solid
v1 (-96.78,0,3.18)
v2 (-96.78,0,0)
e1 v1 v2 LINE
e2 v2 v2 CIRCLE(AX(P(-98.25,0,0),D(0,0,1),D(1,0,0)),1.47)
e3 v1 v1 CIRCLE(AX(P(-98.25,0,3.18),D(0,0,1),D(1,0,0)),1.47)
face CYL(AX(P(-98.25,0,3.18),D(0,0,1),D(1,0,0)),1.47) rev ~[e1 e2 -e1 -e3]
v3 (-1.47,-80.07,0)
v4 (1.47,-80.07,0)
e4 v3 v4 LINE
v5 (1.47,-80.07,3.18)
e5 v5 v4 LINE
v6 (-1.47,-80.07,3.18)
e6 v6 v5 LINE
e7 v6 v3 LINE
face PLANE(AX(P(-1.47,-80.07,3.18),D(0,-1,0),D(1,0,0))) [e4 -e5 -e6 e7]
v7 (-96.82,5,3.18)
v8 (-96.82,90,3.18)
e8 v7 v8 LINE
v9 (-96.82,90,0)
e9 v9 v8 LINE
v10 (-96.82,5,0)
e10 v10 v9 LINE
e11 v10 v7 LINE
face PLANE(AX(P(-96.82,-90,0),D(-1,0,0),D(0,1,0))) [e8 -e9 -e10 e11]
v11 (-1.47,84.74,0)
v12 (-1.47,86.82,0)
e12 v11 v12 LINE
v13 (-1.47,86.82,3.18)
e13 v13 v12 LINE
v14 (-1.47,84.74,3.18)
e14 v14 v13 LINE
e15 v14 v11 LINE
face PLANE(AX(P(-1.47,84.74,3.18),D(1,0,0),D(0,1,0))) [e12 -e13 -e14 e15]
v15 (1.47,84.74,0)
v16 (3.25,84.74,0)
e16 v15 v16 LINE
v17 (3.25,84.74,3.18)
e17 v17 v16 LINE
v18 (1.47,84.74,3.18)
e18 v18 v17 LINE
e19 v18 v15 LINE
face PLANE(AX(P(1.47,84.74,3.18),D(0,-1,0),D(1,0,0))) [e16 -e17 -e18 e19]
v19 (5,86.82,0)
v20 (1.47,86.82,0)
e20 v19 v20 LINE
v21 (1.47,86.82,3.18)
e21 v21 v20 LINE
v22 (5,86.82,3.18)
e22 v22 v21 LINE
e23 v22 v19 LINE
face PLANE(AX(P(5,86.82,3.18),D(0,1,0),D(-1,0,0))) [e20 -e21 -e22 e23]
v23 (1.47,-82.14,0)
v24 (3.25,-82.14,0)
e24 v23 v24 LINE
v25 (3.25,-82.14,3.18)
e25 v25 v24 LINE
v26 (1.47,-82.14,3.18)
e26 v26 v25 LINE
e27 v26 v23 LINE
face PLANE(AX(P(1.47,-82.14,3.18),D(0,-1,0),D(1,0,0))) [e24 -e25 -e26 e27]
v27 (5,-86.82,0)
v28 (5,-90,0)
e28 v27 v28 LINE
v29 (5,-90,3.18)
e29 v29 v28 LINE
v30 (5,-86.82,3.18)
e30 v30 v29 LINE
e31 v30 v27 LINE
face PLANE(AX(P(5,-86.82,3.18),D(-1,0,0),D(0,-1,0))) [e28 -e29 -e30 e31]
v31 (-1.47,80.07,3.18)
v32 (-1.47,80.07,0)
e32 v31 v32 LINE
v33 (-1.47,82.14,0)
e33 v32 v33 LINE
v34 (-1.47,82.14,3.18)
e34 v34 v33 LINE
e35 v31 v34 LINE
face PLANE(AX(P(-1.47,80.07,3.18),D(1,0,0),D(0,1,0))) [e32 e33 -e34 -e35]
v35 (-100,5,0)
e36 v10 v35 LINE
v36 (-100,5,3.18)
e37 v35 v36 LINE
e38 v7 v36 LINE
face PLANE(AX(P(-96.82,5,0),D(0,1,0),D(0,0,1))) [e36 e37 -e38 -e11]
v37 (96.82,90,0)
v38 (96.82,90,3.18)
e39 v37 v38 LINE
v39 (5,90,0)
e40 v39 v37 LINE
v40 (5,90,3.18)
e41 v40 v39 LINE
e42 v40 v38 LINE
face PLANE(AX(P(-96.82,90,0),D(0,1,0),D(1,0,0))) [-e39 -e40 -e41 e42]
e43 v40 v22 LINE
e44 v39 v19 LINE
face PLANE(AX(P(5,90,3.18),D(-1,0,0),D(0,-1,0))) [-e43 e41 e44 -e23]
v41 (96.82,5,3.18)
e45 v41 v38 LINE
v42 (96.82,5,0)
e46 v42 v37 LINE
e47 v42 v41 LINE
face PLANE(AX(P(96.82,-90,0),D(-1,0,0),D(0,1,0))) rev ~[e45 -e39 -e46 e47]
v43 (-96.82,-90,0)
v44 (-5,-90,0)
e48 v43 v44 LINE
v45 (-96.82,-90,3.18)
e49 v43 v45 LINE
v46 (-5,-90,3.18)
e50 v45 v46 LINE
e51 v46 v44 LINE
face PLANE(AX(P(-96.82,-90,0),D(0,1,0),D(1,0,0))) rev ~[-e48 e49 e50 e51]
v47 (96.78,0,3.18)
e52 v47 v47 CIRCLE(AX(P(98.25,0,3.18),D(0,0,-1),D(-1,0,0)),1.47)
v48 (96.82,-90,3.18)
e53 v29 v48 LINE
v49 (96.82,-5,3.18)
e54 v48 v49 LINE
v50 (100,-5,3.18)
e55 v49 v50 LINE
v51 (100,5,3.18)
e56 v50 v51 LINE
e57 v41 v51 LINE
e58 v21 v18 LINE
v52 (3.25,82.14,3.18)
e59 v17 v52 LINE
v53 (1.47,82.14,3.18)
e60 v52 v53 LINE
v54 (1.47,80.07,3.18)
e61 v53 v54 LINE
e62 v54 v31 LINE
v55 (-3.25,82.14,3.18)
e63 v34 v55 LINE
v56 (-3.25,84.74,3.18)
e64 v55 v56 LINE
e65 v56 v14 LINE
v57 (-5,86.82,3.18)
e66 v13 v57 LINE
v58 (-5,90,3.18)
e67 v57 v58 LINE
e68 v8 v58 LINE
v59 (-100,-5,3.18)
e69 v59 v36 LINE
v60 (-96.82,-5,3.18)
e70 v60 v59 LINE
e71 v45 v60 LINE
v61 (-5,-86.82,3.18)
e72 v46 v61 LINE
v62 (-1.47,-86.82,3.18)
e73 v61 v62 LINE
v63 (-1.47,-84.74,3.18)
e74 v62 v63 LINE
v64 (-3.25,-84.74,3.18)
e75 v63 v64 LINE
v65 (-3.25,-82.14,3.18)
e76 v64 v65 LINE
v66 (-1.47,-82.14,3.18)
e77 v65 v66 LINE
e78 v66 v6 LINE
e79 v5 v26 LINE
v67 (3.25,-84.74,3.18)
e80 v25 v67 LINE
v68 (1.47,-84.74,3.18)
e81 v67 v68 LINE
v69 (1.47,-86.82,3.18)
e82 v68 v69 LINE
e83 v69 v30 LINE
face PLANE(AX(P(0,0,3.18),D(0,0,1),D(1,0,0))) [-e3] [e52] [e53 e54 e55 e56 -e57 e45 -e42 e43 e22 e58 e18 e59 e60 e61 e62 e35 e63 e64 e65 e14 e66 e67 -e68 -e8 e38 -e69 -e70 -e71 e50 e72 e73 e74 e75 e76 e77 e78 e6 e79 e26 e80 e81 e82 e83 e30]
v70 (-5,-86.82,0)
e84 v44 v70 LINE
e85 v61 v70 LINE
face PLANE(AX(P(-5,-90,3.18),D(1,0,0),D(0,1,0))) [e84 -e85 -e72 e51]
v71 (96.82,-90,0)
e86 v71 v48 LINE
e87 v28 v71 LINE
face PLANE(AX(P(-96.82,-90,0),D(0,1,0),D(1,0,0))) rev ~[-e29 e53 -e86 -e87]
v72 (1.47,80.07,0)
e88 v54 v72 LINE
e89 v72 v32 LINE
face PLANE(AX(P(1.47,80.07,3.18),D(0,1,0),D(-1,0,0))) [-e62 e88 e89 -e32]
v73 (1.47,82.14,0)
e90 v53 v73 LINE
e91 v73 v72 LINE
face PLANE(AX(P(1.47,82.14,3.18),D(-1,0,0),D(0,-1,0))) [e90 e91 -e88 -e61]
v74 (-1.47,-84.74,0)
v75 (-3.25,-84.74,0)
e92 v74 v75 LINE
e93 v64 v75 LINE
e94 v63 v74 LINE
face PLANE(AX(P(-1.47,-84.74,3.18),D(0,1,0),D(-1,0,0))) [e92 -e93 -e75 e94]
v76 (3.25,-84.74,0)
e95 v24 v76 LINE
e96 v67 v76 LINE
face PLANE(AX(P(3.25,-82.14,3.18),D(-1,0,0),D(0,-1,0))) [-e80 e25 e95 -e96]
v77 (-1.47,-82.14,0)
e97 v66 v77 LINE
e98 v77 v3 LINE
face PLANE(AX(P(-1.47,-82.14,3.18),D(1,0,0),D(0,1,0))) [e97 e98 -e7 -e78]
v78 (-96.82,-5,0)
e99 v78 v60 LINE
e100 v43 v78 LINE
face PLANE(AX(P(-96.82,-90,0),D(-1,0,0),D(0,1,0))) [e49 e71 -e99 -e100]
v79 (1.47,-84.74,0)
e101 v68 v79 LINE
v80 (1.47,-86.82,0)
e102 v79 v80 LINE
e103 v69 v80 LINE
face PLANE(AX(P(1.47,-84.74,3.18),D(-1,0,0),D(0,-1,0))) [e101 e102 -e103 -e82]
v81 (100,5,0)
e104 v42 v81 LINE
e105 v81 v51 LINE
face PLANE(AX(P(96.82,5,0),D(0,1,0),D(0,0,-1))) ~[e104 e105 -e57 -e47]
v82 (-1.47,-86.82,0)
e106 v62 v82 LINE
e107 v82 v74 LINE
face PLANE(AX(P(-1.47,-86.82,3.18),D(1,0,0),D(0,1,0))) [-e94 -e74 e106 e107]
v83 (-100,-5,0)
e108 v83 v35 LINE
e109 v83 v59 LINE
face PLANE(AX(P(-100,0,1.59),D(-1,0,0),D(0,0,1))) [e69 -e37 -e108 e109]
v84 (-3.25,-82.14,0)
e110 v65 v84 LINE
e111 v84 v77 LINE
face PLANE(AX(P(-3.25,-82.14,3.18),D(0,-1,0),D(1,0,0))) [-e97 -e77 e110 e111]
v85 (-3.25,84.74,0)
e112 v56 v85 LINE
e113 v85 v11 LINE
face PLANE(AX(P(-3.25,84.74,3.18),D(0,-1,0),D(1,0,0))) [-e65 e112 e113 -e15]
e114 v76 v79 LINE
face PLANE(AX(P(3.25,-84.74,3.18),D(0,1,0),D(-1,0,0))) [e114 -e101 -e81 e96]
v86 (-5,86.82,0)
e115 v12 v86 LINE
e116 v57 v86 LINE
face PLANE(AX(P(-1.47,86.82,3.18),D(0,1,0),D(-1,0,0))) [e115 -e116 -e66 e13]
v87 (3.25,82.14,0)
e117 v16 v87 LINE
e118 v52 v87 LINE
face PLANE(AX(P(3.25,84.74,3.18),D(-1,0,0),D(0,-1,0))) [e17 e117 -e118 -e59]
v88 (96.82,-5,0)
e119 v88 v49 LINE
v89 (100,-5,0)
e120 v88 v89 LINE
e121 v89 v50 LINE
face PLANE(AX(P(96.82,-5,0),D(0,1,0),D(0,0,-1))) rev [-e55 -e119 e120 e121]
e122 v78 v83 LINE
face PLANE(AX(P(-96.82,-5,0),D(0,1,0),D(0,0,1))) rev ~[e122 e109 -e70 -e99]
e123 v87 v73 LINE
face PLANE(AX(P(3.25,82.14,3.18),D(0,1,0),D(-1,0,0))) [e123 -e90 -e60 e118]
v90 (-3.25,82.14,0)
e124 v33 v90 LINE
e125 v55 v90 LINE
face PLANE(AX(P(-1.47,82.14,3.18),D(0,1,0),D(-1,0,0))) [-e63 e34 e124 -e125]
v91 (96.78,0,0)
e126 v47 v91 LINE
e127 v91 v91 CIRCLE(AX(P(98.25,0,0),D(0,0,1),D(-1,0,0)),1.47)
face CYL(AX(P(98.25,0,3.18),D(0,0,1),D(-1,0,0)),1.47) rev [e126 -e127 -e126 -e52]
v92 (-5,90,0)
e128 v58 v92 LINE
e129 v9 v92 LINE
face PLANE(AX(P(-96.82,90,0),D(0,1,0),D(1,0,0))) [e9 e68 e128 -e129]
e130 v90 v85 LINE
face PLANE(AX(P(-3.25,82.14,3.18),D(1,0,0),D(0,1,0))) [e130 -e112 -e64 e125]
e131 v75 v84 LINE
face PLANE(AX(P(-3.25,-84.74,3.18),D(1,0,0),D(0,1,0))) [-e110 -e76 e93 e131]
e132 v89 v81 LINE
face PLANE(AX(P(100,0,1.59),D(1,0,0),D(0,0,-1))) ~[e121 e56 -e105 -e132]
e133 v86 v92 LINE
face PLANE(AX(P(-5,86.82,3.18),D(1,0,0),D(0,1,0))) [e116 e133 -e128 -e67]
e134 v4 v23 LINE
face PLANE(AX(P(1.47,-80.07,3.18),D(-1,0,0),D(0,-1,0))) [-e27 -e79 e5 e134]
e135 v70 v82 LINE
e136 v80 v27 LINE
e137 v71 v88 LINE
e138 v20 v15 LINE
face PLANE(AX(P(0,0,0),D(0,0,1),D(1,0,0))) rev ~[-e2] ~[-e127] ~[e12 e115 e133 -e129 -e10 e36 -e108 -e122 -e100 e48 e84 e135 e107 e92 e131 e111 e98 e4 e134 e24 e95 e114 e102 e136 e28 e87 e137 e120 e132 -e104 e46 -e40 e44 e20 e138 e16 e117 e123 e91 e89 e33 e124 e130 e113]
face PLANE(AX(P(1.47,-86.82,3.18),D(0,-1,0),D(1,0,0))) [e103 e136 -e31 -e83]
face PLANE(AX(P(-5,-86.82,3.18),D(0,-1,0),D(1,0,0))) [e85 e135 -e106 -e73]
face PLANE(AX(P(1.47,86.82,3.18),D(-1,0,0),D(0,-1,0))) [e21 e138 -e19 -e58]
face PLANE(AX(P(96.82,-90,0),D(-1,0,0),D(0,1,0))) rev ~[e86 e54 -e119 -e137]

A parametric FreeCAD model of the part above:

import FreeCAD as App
import Part
import Sketcher
from FreeCAD import Vector
Q = App.Units.Quantity


def add_polygon(sketch, points):
    """Adds a closed chain of lines whose ends are joined by coincident constraints."""
    first, n = sketch.GeometryCount, len(points)
    for a, b in zip(points, points[1:] + points[:1]):
        sketch.addGeometry(Part.LineSegment(App.Vector(*a, 0), App.Vector(*b, 0)), False)
    for i in range(n):
        sketch.addConstraint(Sketcher.Constraint("Coincident", first + i, 2, first + (i + 1) % n, 1))

doc = App.newDocument("Part")
body = doc.addObject("PartDesign::Body", "Body")

# Sketch on XY plane
sketch1 = body.newObject("Sketcher::SketchObject", "Sketch")
sketch1.AttachmentSupport = (doc.getObject("XY_Plane"), [""])
sketch1.MapMode = "FlatFace"
add_polygon(sketch1, [(-96.82, 90), (-96.82, -90), (96.82, -90), (96.82, 90)])  # lines 0-3
sketch1.addConstraint(Sketcher.Constraint("Vertical", 0))
sketch1.addConstraint(Sketcher.Constraint("Horizontal", 1))
sketch1.addConstraint(Sketcher.Constraint("Vertical", 2))
sketch1.addConstraint(Sketcher.Constraint("Horizontal", 3))
sketch1.addConstraint(Sketcher.Constraint("Symmetric", 0, 2, 2, 2, -1, 1))
sketch1.addConstraint(Sketcher.Constraint("DistanceY", 0, 2, 0, 1, Q("180 mm")))
sketch1.addConstraint(Sketcher.Constraint("DistanceX", 1, 1, 1, 2, Q("193.64 mm")))
pad1 = body.newObject("PartDesign::Pad", "Pad")
pad1.Profile = sketch1
pad1.Length = 3.18

# Sketch on XY plane
sketch2 = body.newObject("Sketcher::SketchObject", "Sketch001")
sketch2.AttachmentSupport = (doc.getObject("XY_Plane"), [""])
sketch2.MapMode = "FlatFace"
sketch2.AttachmentOffset = App.Placement(Vector(0, 0, 3.18), App.Rotation())
add_polygon(sketch2, [(5, 90), (-5, 90), (-5, 86.82), (-1.47, 86.82), (-1.47, 84.74), (-3.25, 84.74), (-3.25, 82.14), (-1.47, 82.14), (-1.47, 80.07), (1.47, 80.07), (1.47, 82.14), (3.25, 82.14), (3.25, 84.74), (1.47, 84.74), (1.47, 86.82), (5, 86.82)])  # lines 0-15
add_polygon(sketch2, [(5, -86.82), (1.47, -86.82), (1.47, -84.74), (3.25, -84.74), (3.25, -82.14), (1.47, -82.14), (1.47, -80.07), (-1.47, -80.07), (-1.47, -82.14), (-3.25, -82.14), (-3.25, -84.74), (-1.47, -84.74), (-1.47, -86.82), (-5, -86.82), (-5, -90), (5, -90)])  # lines 16-31
sketch2.addConstraint(Sketcher.Constraint("Horizontal", 0))
sketch2.addConstraint(Sketcher.Constraint("Vertical", 1))
sketch2.addConstraint(Sketcher.Constraint("Horizontal", 2))
sketch2.addConstraint(Sketcher.Constraint("Vertical", 3))
sketch2.addConstraint(Sketcher.Constraint("Horizontal", 4))
sketch2.addConstraint(Sketcher.Constraint("Vertical", 5))
sketch2.addConstraint(Sketcher.Constraint("Horizontal", 6))
sketch2.addConstraint(Sketcher.Constraint("Vertical", 7))
sketch2.addConstraint(Sketcher.Constraint("Horizontal", 8))
sketch2.addConstraint(Sketcher.Constraint("Vertical", 9))
sketch2.addConstraint(Sketcher.Constraint("Horizontal", 10))
sketch2.addConstraint(Sketcher.Constraint("Vertical", 11))
sketch2.addConstraint(Sketcher.Constraint("Horizontal", 12))
sketch2.addConstraint(Sketcher.Constraint("Vertical", 13))
sketch2.addConstraint(Sketcher.Constraint("Horizontal", 14))
sketch2.addConstraint(Sketcher.Constraint("Vertical", 15))
sketch2.addConstraint(Sketcher.Constraint("Horizontal", 16))
sketch2.addConstraint(Sketcher.Constraint("Vertical", 17))
sketch2.addConstraint(Sketcher.Constraint("Horizontal", 18))
sketch2.addConstraint(Sketcher.Constraint("Vertical", 19))
sketch2.addConstraint(Sketcher.Constraint("Horizontal", 20))
sketch2.addConstraint(Sketcher.Constraint("Vertical", 21))
sketch2.addConstraint(Sketcher.Constraint("Horizontal", 22))
sketch2.addConstraint(Sketcher.Constraint("Vertical", 23))
sketch2.addConstraint(Sketcher.Constraint("Horizontal", 24))
sketch2.addConstraint(Sketcher.Constraint("Vertical", 25))
sketch2.addConstraint(Sketcher.Constraint("Horizontal", 26))
sketch2.addConstraint(Sketcher.Constraint("Vertical", 27))
sketch2.addConstraint(Sketcher.Constraint("Horizontal", 28))
sketch2.addConstraint(Sketcher.Constraint("Vertical", 29))
sketch2.addConstraint(Sketcher.Constraint("Horizontal", 30))
sketch2.addConstraint(Sketcher.Constraint("Vertical", 31))
sketch2.addConstraint(Sketcher.Constraint("Symmetric", 2, 2, 16, 2, -1, 1))
sketch2.addConstraint(Sketcher.Constraint("Symmetric", 4, 2, 18, 2, -1, 1))
sketch2.addConstraint(Sketcher.Constraint("Symmetric", 6, 2, 20, 2, -1, 1))
sketch2.addConstraint(Sketcher.Constraint("Symmetric", 8, 2, 22, 2, -1, 1))
sketch2.addConstraint(Sketcher.Constraint("Symmetric", 10, 2, 24, 2, -1, 1))
sketch2.addConstraint(Sketcher.Constraint("Symmetric", 12, 2, 26, 2, -1, 1))
sketch2.addConstraint(Sketcher.Constraint("Symmetric", 14, 2, 28, 2, -1, 1))
sketch2.addConstraint(Sketcher.Constraint("Symmetric", 0, 2, 30, 2, -1, 1))
sketch2.addConstraint(Sketcher.Constraint("Symmetric", 6, 2, 9, 2, -2))
sketch2.addConstraint(Sketcher.Constraint("Symmetric", 4, 2, 11, 2, -2))
sketch2.addConstraint(Sketcher.Constraint("Symmetric", 2, 2, 13, 2, -2))
sketch2.addConstraint(Sketcher.Constraint("Vertical", 3, 2, 6, 2))
sketch2.addConstraint(Sketcher.Constraint("Vertical", 1, 2, 28, 2))
sketch2.addConstraint(Sketcher.Constraint("DistanceX", 0, 2, 0, 1, Q("10 mm")))
sketch2.addConstraint(Sketcher.Constraint("DistanceY", 5, 2, 5, 1, Q("2.6 mm")))
sketch2.addConstraint(Sketcher.Constraint("DistanceY", -1, 1, 0, 2, Q("90 mm")))
sketch2.addConstraint(Sketcher.Constraint("DistanceX", 2, 1, 2, 2, Q("3.53 mm")))
sketch2.addConstraint(Sketcher.Constraint("DistanceX", 4, 2, 4, 1, Q("1.78 mm")))
sketch2.addConstraint(Sketcher.Constraint("DistanceY", 1, 2, 1, 1, Q("3.18 mm")))
sketch2.addConstraint(Sketcher.Constraint("DistanceY", 3, 2, 3, 1, Q("2.08 mm")))
sketch2.addConstraint(Sketcher.Constraint("DistanceY", 7, 2, 7, 1, Q("2.07 mm")))
pocket1 = body.newObject("PartDesign::Pocket", "Pocket")
pocket1.Profile = sketch2
pocket1.Type = "ThroughAll"

# Sketch on YZ plane
sketch3 = body.newObject("Sketcher::SketchObject", "Sketch002")
sketch3.AttachmentSupport = (doc.getObject("YZ_Plane"), [""])
sketch3.MapMode = "FlatFace"
sketch3.AttachmentOffset = App.Placement(Vector(0, 0, -96.82), App.Rotation())
add_polygon(sketch3, [(5, 0), (-5, 0), (-5, 3.18), (5, 3.18)])  # lines 0-3
sketch3.addConstraint(Sketcher.Constraint("Horizontal", 0))
sketch3.addConstraint(Sketcher.Constraint("Vertical", 1))
sketch3.addConstraint(Sketcher.Constraint("Horizontal", 2))
sketch3.addConstraint(Sketcher.Constraint("Vertical", 3))
sketch3.addConstraint(Sketcher.Constraint("Symmetric", 0, 2, 3, 2, -1, 1))
sketch3.addConstraint(Sketcher.Constraint("DistanceX", 0, 2, 0, 1, Q("10 mm")))
sketch3.addConstraint(Sketcher.Constraint("DistanceY", 1, 1, 1, 2, Q("3.18 mm")))
pad2 = body.newObject("PartDesign::Pad", "Pad001")
pad2.Profile = sketch3
pad2.Length = 3.18
pad2.Reversed = True

# Sketch on XY plane
sketch4 = body.newObject("Sketcher::SketchObject", "Sketch003")
sketch4.AttachmentSupport = (doc.getObject("XY_Plane"), [""])
sketch4.MapMode = "FlatFace"
sketch4.AttachmentOffset = App.Placement(Vector(0, 0, 3.18), App.Rotation())
sketch4.addGeometry(Part.Circle(Vector(-98.25, 0, 0), Vector(0, 0, 1), 1.47), False)
sketch4.addConstraint(Sketcher.Constraint("PointOnObject", 0, 3, -1))
sketch4.addConstraint(Sketcher.Constraint("Diameter", 0, Q("2.94 mm")))
sketch4.addConstraint(Sketcher.Constraint("DistanceX", 0, 3, -1, 1, Q("98.25 mm")))
pocket2 = body.newObject("PartDesign::Pocket", "Pocket001")
pocket2.Profile = sketch4
pocket2.Type = "ThroughAll"
doc.recompute()

mirrored = body.newObject("PartDesign::Mirrored", "Mirrored")
mirrored.Originals = [pad2]
mirrored.MirrorPlane = (doc.getObject("YZ_Plane"), [""])
body.Tip = mirrored
doc.recompute()

mirrored2 = body.newObject("PartDesign::Mirrored", "Mirrored001")
mirrored2.Originals = [pocket2]
mirrored2.MirrorPlane = (doc.getObject("YZ_Plane"), [""])
body.Tip = mirrored2

doc.recompute()
